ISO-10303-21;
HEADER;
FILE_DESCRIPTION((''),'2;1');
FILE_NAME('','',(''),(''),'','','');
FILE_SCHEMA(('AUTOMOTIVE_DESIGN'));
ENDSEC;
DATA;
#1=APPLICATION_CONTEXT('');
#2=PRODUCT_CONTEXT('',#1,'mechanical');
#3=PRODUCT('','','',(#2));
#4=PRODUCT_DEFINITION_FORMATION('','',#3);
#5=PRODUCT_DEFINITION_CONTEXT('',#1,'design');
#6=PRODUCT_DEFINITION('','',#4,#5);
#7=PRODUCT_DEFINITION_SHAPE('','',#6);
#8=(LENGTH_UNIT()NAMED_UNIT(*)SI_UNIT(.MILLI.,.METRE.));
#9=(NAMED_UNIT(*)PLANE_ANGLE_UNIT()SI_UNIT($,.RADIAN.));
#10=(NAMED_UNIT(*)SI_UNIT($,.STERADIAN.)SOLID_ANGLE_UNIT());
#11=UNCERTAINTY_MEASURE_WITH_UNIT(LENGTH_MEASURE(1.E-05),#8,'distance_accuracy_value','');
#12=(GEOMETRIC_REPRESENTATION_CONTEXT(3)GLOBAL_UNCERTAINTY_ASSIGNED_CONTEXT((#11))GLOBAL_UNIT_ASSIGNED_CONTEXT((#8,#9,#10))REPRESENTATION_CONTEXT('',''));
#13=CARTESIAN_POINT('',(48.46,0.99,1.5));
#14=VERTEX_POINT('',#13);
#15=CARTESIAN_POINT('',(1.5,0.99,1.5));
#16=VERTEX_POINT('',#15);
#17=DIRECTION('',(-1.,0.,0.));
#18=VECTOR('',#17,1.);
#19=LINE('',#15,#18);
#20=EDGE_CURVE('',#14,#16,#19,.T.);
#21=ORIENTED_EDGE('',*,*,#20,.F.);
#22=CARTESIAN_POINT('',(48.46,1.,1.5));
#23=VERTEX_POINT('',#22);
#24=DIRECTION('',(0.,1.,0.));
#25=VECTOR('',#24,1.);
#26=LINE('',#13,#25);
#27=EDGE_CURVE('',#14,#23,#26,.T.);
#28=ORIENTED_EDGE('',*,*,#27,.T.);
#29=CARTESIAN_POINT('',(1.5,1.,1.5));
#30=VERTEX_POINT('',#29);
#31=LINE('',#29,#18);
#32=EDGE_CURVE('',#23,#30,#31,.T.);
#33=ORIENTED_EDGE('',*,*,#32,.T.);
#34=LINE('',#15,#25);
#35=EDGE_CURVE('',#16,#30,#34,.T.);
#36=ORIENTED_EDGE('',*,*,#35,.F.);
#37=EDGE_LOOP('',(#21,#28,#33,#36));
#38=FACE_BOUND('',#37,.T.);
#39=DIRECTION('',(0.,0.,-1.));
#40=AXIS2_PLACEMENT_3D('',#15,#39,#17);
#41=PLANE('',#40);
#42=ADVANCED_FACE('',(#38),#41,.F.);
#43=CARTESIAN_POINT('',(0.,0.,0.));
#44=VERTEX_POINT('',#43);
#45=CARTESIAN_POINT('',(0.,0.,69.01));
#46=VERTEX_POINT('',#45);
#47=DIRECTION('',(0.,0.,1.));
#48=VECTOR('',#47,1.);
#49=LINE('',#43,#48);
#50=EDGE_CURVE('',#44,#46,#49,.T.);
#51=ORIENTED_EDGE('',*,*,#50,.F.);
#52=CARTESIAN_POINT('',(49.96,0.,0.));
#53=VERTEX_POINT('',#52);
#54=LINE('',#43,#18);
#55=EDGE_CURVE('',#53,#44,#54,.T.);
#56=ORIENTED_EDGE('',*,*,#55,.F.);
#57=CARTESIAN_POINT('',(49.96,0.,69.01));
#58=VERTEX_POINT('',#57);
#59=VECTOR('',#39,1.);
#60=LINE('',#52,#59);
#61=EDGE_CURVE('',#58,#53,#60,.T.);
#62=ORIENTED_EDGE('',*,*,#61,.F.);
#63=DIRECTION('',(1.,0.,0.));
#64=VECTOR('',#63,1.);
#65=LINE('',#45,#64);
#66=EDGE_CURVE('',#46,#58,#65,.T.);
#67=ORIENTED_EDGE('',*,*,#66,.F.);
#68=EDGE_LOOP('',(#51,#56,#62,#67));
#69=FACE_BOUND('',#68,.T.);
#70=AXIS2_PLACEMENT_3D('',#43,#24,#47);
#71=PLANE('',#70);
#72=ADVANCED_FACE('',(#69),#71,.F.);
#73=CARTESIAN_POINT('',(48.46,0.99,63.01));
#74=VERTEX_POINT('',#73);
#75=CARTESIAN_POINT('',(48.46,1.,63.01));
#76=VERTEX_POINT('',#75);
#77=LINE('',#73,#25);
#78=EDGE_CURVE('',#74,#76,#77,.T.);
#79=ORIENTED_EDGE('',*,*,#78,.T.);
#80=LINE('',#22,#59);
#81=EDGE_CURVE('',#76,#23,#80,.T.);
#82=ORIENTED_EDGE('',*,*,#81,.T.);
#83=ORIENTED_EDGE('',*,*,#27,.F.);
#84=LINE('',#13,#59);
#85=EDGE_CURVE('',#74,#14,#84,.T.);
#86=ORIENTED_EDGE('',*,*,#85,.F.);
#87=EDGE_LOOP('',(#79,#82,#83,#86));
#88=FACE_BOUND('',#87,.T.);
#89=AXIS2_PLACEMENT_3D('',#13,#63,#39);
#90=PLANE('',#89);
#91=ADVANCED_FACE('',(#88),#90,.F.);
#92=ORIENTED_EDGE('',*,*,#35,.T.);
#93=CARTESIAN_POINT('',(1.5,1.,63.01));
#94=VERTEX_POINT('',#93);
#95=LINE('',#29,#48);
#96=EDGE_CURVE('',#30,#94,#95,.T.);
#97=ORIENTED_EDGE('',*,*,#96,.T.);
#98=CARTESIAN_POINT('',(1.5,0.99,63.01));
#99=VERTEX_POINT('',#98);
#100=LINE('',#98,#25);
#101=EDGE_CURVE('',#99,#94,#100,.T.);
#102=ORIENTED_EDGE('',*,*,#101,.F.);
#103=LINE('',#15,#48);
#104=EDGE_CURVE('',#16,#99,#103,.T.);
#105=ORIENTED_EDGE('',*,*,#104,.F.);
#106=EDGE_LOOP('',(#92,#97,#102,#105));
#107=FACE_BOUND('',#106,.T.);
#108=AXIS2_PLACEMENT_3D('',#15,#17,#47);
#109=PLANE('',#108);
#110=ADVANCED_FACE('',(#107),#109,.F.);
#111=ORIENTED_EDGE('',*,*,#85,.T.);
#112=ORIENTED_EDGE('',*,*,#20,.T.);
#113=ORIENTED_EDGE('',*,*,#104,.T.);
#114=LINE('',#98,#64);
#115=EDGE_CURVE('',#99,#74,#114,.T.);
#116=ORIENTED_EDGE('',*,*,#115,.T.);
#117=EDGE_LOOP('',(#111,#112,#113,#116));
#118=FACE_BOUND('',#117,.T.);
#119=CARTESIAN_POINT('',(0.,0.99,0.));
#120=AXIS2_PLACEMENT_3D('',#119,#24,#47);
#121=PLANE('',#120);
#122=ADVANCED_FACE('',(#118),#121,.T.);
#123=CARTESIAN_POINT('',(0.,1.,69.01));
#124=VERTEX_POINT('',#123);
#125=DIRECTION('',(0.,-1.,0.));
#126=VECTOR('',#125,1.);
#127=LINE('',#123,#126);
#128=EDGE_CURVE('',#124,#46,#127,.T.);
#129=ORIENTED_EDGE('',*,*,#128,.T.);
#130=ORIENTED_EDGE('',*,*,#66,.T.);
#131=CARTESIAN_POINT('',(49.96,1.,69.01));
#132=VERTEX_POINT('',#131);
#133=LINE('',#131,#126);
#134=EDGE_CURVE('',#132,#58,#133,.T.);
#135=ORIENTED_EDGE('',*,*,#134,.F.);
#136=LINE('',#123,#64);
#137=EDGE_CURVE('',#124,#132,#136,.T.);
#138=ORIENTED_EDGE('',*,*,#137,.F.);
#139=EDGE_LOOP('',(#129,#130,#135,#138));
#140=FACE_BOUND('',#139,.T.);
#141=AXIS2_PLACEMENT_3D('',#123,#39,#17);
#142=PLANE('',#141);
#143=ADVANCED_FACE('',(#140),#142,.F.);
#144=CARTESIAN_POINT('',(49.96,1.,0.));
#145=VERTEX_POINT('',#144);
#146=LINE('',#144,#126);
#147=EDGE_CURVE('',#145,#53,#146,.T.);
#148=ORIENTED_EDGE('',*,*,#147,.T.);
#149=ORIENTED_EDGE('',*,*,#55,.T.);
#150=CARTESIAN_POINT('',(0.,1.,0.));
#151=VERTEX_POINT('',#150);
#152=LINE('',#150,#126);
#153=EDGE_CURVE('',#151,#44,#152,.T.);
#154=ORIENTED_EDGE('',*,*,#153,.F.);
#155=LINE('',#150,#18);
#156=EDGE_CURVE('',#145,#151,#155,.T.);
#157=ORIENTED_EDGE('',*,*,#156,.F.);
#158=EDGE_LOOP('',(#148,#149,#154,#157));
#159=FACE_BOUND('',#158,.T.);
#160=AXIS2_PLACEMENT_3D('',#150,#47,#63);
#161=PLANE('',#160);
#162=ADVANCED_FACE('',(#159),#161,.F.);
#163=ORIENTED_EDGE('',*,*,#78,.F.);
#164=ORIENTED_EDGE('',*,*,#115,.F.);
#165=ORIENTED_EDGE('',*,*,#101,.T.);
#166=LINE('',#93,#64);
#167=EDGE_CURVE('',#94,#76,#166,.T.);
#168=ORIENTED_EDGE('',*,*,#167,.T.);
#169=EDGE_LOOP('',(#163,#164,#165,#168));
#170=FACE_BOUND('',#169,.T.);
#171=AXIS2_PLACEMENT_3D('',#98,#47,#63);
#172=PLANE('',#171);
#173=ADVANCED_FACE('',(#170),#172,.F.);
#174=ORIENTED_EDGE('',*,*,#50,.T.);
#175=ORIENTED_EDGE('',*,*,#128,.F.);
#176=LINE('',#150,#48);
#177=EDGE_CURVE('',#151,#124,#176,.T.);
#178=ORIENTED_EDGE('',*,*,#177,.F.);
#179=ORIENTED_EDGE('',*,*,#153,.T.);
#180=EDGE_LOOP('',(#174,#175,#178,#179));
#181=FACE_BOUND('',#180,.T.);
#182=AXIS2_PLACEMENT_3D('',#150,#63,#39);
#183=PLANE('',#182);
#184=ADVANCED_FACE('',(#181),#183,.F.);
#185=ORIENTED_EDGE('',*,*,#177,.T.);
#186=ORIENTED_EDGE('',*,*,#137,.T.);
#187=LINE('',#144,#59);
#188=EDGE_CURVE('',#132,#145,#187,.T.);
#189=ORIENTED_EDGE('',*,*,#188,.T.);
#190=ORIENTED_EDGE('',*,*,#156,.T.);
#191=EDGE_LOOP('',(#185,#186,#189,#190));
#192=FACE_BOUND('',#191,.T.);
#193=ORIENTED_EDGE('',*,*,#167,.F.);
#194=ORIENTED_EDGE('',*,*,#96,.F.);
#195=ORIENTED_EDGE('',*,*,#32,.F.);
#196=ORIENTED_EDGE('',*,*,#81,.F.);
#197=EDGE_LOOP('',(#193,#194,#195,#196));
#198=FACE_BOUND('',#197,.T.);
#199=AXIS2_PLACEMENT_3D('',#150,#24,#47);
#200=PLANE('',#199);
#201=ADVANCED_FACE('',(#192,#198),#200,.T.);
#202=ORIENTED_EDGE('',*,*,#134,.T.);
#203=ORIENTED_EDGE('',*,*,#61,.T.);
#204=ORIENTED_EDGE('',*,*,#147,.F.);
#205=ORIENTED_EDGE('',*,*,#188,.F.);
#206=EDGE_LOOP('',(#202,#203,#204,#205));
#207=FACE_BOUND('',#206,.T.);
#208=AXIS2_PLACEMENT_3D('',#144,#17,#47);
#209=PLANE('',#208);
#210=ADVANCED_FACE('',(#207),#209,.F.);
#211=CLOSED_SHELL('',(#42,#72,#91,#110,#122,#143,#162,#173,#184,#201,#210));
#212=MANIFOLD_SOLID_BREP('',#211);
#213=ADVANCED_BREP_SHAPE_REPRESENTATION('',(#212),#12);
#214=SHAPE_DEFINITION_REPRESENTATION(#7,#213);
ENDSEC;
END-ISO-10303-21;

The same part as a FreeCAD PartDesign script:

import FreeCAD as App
import Part
import Sketcher

V = App.Vector

doc = App.newDocument("Part")
body = doc.addObject("PartDesign::Body", "Body")

# Sketch on XZ plane
sketch1 = body.newObject("Sketcher::SketchObject", "Sketch")
sketch1.AttachmentSupport = (doc.getObject("XZ_Plane"), [""])
sketch1.MapMode = "FlatFace"
sketch1.addGeometry(Part.LineSegment(V(0, 0, 0), V(0, 69, 0)), False)
sketch1.addGeometry(Part.LineSegment(V(0, 69, 0), V(50, 69, 0)), False)
sketch1.addGeometry(Part.LineSegment(V(50, 69, 0), V(50, 0, 0)), False)
sketch1.addGeometry(Part.LineSegment(V(50, 0, 0), V(0, 0, 0)), False)
sketch1.addConstraint(Sketcher.Constraint("Coincident", 0, 2, 1, 1))
sketch1.addConstraint(Sketcher.Constraint("Coincident", 1, 2, 2, 1))
sketch1.addConstraint(Sketcher.Constraint("Coincident", 2, 2, 3, 1))
sketch1.addConstraint(Sketcher.Constraint("Coincident", 3, 2, 0, 1))
sketch1.addConstraint(Sketcher.Constraint("Vertical", 0))
sketch1.addConstraint(Sketcher.Constraint("Horizontal", 1))
sketch1.addConstraint(Sketcher.Constraint("Vertical", 2))
sketch1.addConstraint(Sketcher.Constraint("Horizontal", 3))
sketch1.addConstraint(Sketcher.Constraint("Coincident", 3, 2, -1, 1))
sketch1.addConstraint(Sketcher.Constraint("DistanceX", 1, 1, 1, 2, 49.96))
sketch1.addConstraint(Sketcher.Constraint("DistanceY", 0, 1, 0, 2, 69.01))
pad1 = body.newObject("PartDesign::Pad", "Pad")
pad1.Profile = sketch1
pad1.Length = 1
pad1.Reversed = True

# Sketch on XZ plane
sketch2 = body.newObject("Sketcher::SketchObject", "Sketch001")
sketch2.AttachmentSupport = (doc.getObject("XZ_Plane"), [""])
sketch2.MapMode = "FlatFace"
sketch2.AttachmentOffset = App.Placement(V(0, 0, -1), App.Rotation())
sketch2.addGeometry(Part.LineSegment(V(2, 2, 0), V(2, 63, 0)), False)
sketch2.addGeometry(Part.LineSegment(V(2, 63, 0), V(48, 63, 0)), False)
sketch2.addGeometry(Part.LineSegment(V(48, 63, 0), V(48, 2, 0)), False)
sketch2.addGeometry(Part.LineSegment(V(48, 2, 0), V(2, 2, 0)), False)
sketch2.addConstraint(Sketcher.Constraint("Coincident", 0, 2, 1, 1))
sketch2.addConstraint(Sketcher.Constraint("Coincident", 1, 2, 2, 1))
sketch2.addConstraint(Sketcher.Constraint("Coincident", 2, 2, 3, 1))
sketch2.addConstraint(Sketcher.Constraint("Coincident", 3, 2, 0, 1))
sketch2.addConstraint(Sketcher.Constraint("Vertical", 0))
sketch2.addConstraint(Sketcher.Constraint("Horizontal", 1))
sketch2.addConstraint(Sketcher.Constraint("Vertical", 2))
sketch2.addConstraint(Sketcher.Constraint("Horizontal", 3))
sketch2.addConstraint(Sketcher.Constraint("DistanceX", 1, 1, 1, 2, 46.96))
sketch2.addConstraint(Sketcher.Constraint("DistanceY", 0, 1, 0, 2, 61.51))
sketch2.addConstraint(Sketcher.Constraint("DistanceX", -1, 1, 0, 2, 1.5))
sketch2.addConstraint(Sketcher.Constraint("DistanceY", -1, 1, 2, 2, 1.5))
pocket1 = body.newObject("PartDesign::Pocket", "Pocket")
pocket1.Profile = sketch2
pocket1.Length = 0.01
pocket1.Reversed = True

doc.recompute()
